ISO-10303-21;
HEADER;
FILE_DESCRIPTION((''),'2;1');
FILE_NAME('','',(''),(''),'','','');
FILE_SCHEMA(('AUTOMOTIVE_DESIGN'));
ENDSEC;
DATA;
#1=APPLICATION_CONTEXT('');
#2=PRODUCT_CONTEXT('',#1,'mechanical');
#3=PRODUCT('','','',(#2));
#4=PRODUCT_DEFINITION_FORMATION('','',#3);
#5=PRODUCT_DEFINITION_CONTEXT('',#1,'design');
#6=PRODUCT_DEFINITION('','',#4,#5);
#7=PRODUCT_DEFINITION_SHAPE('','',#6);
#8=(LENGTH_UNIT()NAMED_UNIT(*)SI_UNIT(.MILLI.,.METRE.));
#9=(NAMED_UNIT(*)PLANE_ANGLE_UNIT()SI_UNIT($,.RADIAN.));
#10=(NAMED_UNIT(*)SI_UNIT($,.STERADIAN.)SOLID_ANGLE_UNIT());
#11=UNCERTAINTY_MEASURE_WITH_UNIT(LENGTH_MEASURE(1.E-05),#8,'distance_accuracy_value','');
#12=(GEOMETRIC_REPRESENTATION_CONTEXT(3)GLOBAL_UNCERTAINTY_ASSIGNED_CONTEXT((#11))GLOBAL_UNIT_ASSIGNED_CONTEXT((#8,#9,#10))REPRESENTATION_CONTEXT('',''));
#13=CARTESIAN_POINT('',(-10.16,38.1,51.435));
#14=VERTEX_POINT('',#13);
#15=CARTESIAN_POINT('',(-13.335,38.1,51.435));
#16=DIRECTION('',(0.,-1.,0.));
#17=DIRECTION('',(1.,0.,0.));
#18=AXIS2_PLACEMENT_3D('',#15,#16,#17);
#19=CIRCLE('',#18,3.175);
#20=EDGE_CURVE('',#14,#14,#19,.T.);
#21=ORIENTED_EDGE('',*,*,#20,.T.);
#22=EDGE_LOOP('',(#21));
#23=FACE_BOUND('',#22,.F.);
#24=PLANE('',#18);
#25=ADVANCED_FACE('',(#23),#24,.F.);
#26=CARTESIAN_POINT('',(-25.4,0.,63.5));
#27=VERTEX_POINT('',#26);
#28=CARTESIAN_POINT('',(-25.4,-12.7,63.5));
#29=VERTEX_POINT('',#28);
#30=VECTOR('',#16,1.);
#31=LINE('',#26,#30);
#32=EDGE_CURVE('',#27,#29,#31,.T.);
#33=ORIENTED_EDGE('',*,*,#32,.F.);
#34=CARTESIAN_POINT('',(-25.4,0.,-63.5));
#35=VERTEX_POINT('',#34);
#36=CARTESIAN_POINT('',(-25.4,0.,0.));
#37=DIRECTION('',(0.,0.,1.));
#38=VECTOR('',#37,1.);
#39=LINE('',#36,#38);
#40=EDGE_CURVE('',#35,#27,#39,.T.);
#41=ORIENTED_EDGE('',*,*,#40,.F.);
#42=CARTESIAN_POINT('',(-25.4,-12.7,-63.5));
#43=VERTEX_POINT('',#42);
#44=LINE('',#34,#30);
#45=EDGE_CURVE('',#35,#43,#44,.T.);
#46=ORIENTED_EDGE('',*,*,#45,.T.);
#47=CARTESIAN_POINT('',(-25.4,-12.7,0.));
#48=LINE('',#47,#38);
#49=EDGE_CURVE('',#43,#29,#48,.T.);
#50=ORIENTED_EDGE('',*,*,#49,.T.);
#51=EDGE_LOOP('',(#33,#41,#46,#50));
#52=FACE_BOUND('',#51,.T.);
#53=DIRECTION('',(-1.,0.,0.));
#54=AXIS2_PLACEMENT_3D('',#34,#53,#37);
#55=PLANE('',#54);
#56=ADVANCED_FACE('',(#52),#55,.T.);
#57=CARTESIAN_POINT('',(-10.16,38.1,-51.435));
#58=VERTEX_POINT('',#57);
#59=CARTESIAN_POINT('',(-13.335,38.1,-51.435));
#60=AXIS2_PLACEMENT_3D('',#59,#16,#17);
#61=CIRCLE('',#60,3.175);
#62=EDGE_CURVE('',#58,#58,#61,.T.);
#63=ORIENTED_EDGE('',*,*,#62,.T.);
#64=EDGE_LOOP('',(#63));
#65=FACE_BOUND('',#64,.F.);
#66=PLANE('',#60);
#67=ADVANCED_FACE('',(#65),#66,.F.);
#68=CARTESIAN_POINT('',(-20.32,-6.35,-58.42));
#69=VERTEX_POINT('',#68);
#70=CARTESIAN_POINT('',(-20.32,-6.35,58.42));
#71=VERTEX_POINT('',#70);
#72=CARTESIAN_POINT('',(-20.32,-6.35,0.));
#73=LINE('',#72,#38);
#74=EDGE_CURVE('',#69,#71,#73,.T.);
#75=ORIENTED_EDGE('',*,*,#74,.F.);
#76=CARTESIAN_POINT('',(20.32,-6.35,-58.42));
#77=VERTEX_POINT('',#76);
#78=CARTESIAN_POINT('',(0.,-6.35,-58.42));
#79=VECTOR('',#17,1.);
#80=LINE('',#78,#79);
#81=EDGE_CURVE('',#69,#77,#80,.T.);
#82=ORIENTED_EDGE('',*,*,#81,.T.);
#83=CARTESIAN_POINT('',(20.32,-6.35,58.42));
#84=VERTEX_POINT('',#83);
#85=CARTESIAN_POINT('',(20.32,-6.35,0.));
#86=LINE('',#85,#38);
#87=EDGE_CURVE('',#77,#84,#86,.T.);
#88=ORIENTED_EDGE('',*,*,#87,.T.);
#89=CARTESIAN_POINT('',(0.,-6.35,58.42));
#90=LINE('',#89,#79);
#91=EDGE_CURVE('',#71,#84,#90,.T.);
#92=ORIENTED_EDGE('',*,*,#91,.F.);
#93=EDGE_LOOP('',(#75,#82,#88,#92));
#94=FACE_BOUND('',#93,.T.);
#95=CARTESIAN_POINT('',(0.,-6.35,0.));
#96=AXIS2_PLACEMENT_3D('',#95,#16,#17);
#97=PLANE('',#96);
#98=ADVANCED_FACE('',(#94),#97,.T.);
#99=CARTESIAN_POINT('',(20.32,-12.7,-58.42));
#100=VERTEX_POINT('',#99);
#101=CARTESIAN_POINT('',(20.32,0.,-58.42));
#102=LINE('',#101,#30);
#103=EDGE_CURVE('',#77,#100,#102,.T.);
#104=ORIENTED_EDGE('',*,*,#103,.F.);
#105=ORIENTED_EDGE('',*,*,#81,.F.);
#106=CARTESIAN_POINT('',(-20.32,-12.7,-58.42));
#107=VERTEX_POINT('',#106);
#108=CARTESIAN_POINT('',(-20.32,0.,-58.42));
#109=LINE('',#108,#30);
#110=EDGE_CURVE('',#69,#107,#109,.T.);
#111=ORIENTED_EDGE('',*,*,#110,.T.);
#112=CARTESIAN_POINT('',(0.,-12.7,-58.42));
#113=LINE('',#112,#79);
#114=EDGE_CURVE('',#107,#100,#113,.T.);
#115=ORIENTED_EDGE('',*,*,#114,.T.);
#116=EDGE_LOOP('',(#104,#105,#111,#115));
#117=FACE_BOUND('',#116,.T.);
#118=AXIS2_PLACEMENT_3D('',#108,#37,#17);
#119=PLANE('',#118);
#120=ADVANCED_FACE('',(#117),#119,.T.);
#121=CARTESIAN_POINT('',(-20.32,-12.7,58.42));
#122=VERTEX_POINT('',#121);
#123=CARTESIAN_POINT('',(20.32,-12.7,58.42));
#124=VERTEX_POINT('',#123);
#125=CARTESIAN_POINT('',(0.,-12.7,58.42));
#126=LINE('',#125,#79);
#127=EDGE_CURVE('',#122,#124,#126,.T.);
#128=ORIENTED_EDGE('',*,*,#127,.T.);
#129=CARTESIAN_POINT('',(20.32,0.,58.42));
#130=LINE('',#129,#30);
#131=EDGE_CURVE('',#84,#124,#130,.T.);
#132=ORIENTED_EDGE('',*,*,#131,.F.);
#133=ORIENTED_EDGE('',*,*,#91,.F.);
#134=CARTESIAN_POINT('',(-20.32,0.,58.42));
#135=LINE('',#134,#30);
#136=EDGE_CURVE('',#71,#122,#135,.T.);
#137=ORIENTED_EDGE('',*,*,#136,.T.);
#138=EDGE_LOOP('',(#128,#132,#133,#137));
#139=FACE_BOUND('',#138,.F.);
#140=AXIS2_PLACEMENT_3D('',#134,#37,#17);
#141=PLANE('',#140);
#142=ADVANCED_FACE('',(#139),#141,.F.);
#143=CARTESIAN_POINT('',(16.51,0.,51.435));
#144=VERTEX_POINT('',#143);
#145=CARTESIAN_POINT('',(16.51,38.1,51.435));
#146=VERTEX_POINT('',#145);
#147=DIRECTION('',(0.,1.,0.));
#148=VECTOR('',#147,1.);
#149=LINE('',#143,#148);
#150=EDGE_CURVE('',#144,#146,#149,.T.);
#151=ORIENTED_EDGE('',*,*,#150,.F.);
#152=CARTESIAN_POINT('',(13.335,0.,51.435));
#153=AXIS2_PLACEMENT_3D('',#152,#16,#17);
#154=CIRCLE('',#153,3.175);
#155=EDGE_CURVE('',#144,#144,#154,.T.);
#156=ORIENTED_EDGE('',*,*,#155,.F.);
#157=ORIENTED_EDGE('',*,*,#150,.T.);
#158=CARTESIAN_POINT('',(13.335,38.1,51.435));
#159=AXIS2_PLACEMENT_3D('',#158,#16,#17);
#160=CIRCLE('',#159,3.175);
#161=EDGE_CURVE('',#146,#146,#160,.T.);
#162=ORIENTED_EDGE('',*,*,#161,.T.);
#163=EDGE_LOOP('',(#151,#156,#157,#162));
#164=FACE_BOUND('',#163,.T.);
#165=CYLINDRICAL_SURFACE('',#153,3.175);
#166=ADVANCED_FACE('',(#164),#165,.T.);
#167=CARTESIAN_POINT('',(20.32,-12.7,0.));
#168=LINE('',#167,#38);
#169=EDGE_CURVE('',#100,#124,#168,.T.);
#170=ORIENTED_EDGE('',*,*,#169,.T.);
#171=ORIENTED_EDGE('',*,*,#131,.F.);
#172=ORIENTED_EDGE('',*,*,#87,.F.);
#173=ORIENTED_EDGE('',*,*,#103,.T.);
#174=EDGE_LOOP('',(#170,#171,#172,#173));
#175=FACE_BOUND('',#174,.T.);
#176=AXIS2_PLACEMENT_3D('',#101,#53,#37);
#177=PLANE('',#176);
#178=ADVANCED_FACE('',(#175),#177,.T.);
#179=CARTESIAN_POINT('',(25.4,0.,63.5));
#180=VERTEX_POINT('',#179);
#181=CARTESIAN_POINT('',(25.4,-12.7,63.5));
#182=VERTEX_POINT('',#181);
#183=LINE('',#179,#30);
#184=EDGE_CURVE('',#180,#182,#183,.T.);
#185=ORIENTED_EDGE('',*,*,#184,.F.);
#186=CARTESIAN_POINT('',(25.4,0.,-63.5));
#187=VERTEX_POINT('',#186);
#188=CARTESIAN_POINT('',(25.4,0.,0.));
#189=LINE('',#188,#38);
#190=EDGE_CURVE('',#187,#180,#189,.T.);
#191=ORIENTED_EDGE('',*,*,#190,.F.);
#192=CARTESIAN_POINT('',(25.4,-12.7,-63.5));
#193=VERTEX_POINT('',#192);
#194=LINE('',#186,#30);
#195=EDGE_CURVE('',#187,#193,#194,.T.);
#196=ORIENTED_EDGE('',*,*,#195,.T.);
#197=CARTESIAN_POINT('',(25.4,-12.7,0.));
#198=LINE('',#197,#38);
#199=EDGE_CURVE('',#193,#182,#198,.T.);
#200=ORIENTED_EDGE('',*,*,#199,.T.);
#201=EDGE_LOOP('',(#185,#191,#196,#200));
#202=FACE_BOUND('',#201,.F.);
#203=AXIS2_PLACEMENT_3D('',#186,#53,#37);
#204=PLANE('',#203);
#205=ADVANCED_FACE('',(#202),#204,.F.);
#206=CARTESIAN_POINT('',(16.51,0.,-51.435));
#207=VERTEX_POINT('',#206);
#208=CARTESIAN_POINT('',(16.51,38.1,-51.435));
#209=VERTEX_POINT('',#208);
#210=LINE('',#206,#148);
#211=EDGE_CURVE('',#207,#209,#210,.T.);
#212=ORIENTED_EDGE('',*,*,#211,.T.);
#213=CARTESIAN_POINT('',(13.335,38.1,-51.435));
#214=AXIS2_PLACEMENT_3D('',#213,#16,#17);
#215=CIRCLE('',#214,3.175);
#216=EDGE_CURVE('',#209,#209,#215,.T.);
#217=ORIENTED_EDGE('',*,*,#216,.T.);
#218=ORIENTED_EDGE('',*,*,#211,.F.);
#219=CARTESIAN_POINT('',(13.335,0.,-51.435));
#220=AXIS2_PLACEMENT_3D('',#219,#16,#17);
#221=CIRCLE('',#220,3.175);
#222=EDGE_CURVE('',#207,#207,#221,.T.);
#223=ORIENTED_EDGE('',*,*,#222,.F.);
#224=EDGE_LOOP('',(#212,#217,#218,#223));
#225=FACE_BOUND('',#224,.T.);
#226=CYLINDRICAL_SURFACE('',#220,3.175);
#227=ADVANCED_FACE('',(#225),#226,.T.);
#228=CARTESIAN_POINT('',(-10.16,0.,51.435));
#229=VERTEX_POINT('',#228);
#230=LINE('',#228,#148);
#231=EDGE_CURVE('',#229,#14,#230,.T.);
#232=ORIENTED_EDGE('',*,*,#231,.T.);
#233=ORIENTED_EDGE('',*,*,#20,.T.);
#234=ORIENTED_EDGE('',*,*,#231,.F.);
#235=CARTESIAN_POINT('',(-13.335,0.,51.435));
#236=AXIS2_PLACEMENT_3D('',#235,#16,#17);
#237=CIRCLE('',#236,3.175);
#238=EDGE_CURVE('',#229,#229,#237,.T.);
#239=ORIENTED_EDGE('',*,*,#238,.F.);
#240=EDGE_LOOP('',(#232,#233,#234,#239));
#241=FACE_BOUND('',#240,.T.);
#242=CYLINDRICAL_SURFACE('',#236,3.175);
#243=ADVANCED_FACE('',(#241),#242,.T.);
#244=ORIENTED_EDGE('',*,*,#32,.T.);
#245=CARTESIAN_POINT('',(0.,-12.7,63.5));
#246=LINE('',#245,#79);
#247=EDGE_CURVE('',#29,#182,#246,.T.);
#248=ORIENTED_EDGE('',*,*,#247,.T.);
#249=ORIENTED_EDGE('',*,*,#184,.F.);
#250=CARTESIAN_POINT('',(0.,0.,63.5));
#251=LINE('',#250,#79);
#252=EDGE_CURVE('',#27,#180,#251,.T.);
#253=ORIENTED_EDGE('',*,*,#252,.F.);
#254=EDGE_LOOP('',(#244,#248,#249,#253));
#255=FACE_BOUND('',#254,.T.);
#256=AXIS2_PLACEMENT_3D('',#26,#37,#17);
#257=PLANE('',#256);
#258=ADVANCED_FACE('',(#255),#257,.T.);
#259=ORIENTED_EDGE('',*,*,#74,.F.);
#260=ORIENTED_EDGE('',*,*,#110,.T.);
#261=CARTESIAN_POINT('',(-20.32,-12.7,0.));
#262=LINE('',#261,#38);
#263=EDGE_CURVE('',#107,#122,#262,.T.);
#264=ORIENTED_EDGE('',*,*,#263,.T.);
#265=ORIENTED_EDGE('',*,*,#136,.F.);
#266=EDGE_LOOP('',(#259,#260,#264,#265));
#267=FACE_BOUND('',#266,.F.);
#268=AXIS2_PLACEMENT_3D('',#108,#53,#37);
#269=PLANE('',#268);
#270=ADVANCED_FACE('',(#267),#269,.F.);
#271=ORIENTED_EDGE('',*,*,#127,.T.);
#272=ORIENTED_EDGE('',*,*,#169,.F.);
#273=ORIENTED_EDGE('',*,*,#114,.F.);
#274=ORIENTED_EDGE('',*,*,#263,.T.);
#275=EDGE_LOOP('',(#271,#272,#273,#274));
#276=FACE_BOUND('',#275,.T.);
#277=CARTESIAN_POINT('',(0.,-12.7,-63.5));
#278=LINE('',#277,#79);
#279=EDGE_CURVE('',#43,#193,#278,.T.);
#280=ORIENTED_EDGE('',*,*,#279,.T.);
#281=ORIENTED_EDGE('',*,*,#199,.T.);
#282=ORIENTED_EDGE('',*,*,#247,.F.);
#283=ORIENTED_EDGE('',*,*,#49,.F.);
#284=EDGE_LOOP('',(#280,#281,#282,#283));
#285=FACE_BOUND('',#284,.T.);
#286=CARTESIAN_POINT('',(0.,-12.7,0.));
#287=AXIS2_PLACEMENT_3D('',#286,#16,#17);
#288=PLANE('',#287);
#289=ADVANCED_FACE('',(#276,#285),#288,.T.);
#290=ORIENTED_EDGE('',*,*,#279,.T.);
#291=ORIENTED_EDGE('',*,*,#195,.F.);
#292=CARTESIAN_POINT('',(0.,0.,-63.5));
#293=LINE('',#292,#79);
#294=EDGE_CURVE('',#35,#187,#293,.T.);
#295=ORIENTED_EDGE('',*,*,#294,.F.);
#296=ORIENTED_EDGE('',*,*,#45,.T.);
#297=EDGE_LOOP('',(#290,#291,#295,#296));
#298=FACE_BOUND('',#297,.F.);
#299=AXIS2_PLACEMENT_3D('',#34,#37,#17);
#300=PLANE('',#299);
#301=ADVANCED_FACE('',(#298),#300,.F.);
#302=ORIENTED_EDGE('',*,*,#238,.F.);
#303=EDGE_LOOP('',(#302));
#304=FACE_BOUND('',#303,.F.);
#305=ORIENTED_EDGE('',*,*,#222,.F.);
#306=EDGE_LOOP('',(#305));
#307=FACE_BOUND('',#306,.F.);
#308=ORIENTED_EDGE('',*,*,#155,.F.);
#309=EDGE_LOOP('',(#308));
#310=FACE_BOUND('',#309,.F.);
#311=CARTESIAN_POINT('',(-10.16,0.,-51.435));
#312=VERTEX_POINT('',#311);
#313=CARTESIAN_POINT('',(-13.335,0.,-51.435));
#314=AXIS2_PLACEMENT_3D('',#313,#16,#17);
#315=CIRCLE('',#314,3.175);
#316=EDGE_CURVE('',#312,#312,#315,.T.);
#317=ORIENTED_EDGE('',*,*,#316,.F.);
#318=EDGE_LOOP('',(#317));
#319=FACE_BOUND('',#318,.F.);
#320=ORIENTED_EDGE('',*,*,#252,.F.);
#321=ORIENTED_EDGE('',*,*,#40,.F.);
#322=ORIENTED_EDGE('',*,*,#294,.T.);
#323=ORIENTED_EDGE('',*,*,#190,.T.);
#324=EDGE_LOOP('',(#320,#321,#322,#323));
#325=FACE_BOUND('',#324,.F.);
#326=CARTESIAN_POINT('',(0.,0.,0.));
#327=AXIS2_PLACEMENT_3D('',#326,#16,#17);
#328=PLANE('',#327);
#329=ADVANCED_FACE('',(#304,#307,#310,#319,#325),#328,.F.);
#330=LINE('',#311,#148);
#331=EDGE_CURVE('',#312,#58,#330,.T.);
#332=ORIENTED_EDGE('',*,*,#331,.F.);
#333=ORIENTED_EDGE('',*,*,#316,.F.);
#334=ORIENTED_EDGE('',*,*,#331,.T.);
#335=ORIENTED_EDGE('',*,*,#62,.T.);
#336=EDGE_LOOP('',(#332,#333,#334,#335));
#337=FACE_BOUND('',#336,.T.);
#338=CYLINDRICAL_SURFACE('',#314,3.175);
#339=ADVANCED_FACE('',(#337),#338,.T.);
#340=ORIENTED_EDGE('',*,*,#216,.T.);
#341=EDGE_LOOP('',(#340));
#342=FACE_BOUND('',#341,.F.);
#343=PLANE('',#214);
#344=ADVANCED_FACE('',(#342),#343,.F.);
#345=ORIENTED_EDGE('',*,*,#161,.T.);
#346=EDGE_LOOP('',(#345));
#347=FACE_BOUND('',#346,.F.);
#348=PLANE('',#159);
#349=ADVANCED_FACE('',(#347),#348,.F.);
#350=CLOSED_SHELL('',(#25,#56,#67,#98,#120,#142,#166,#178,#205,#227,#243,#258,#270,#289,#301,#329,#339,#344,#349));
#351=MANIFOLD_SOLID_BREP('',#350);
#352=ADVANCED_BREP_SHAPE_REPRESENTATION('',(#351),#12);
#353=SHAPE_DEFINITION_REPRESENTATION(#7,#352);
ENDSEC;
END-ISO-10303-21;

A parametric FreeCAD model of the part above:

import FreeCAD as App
import Part
import Sketcher
from FreeCAD import Vector
Q = App.Units.Quantity

doc = App.newDocument("Part")
params = doc.addObject("Spreadsheet::Sheet", "Params")
for row, (alias, value) in enumerate([
    ("sketch1_width", "1.6 in"),
    ("sketch1_height", "4.6 in"),
    ("pad1_length", "0.25 in"),
    ("sketch2_width", "2 in"),
    ("sketch2_height", "5 in"),
    ("sketch2_width2", "1.6 in"),
    ("sketch2_height2", "4.6 in"),
    ("pad2_length", "0.5 in"),
    ("sketch3_diameter", "0.25 in"),
    ("pad3_length", "1.5 in"),
], start=1):
    params.set(f"A{row}", alias)
    params.set(f"B{row}", "=" + value)
    params.setAlias(f"B{row}", alias)

body = doc.addObject("PartDesign::Body", "Body")

# Sketch on XZ plane
sketch1 = body.newObject("Sketcher::SketchObject", "Sketch")
sketch1.AttachmentSupport = (doc.getObject("XZ_Plane"), [""])
sketch1.MapMode = "FlatFace"
sketch1.addGeometry(Part.LineSegment(Vector(-20.32, 58.42, 0), Vector(-20.32, -58.42, 0)), False)
sketch1.addGeometry(Part.LineSegment(Vector(-20.32, -58.42, 0), Vector(20.32, -58.42, 0)), False)
sketch1.addGeometry(Part.LineSegment(Vector(20.32, -58.42, 0), Vector(20.32, 58.42, 0)), False)
sketch1.addGeometry(Part.LineSegment(Vector(20.32, 58.42, 0), Vector(-20.32, 58.42, 0)), False)
sketch1.addConstraint(Sketcher.Constraint("Coincident", 0, 2, 1, 1))
sketch1.addConstraint(Sketcher.Constraint("Coincident", 1, 2, 2, 1))
sketch1.addConstraint(Sketcher.Constraint("Coincident", 2, 2, 3, 1))
sketch1.addConstraint(Sketcher.Constraint("Coincident", 3, 2, 0, 1))
sketch1.addConstraint(Sketcher.Constraint("Vertical", 0))
sketch1.addConstraint(Sketcher.Constraint("Horizontal", 1))
sketch1.addConstraint(Sketcher.Constraint("Vertical", 2))
sketch1.addConstraint(Sketcher.Constraint("Horizontal", 3))
sketch1.addConstraint(Sketcher.Constraint("Symmetric", 0, 2, 2, 2, -1, 1))
sketch1.addConstraint(Sketcher.Constraint("DistanceX", 1, 1, 1, 2, Q("1.6 in")))
sketch1.addConstraint(Sketcher.Constraint("DistanceY", 0, 2, 0, 1, Q("4.6 in")))
sketch1.setExpression("Constraints[9]", "Params.sketch1_width")
sketch1.setExpression("Constraints[10]", "Params.sketch1_height")
pad1 = body.newObject("PartDesign::Pad", "Pad")
pad1.Profile = sketch1
pad1.setExpression("Length", "Params.pad1_length")

# Sketch on XZ plane
sketch2 = body.newObject("Sketcher::SketchObject", "Sketch001")
sketch2.AttachmentSupport = (doc.getObject("XZ_Plane"), [""])
sketch2.MapMode = "FlatFace"
sketch2.addGeometry(Part.LineSegment(Vector(-25.4, 63.5, 0), Vector(-25.4, -63.5, 0)), False)
sketch2.addGeometry(Part.LineSegment(Vector(-25.4, -63.5, 0), Vector(25.4, -63.5, 0)), False)
sketch2.addGeometry(Part.LineSegment(Vector(25.4, -63.5, 0), Vector(25.4, 63.5, 0)), False)
sketch2.addGeometry(Part.LineSegment(Vector(25.4, 63.5, 0), Vector(-25.4, 63.5, 0)), False)
sketch2.addGeometry(Part.LineSegment(Vector(20.32, -58.42, 0), Vector(-20.32, -58.42, 0)), False)
sketch2.addGeometry(Part.LineSegment(Vector(-20.32, -58.42, 0), Vector(-20.32, 58.42, 0)), False)
sketch2.addGeometry(Part.LineSegment(Vector(-20.32, 58.42, 0), Vector(20.32, 58.42, 0)), False)
sketch2.addGeometry(Part.LineSegment(Vector(20.32, 58.42, 0), Vector(20.32, -58.42, 0)), False)
sketch2.addConstraint(Sketcher.Constraint("Coincident", 0, 2, 1, 1))
sketch2.addConstraint(Sketcher.Constraint("Coincident", 1, 2, 2, 1))
sketch2.addConstraint(Sketcher.Constraint("Coincident", 2, 2, 3, 1))
sketch2.addConstraint(Sketcher.Constraint("Coincident", 3, 2, 0, 1))
sketch2.addConstraint(Sketcher.Constraint("Coincident", 4, 2, 5, 1))
sketch2.addConstraint(Sketcher.Constraint("Coincident", 5, 2, 6, 1))
sketch2.addConstraint(Sketcher.Constraint("Coincident", 6, 2, 7, 1))
sketch2.addConstraint(Sketcher.Constraint("Coincident", 7, 2, 4, 1))
sketch2.addConstraint(Sketcher.Constraint("Vertical", 0))
sketch2.addConstraint(Sketcher.Constraint("Horizontal", 1))
sketch2.addConstraint(Sketcher.Constraint("Vertical", 2))
sketch2.addConstraint(Sketcher.Constraint("Horizontal", 3))
sketch2.addConstraint(Sketcher.Constraint("Horizontal", 4))
sketch2.addConstraint(Sketcher.Constraint("Vertical", 5))
sketch2.addConstraint(Sketcher.Constraint("Horizontal", 6))
sketch2.addConstraint(Sketcher.Constraint("Vertical", 7))
sketch2.addConstraint(Sketcher.Constraint("Symmetric", 0, 2, 2, 2, -1, 1))
sketch2.addConstraint(Sketcher.Constraint("Symmetric", 4, 2, 6, 2, -1, 1))
sketch2.addConstraint(Sketcher.Constraint("DistanceX", 1, 1, 1, 2, Q("2 in")))
sketch2.addConstraint(Sketcher.Constraint("DistanceY", 0, 2, 0, 1, Q("5 in")))
sketch2.addConstraint(Sketcher.Constraint("DistanceX", 4, 2, 4, 1, Q("1.6 in")))
sketch2.addConstraint(Sketcher.Constraint("DistanceY", 5, 1, 5, 2, Q("4.6 in")))
sketch2.setExpression("Constraints[18]", "Params.sketch2_width")
sketch2.setExpression("Constraints[19]", "Params.sketch2_height")
sketch2.setExpression("Constraints[20]", "Params.sketch2_width2")
sketch2.setExpression("Constraints[21]", "Params.sketch2_height2")
pad2 = body.newObject("PartDesign::Pad", "Pad001")
pad2.Profile = sketch2
pad2.setExpression("Length", "Params.pad2_length")

# Sketch on XZ plane
sketch3 = body.newObject("Sketcher::SketchObject", "Sketch002")
sketch3.AttachmentSupport = (doc.getObject("XZ_Plane"), [""])
sketch3.MapMode = "FlatFace"
sketch3.addGeometry(Part.Circle(Vector(-13.335, -51.435, 0), Vector(0, 0, 1), 3.175), False)
sketch3.addGeometry(Part.Circle(Vector(13.335, -51.435, 0), Vector(0, 0, 1), 3.175), False)
sketch3.addGeometry(Part.Circle(Vector(13.335, 51.435, 0), Vector(0, 0, 1), 3.175), False)
sketch3.addGeometry(Part.Circle(Vector(-13.335, 51.435, 0), Vector(0, 0, 1), 3.175), False)
sketch3.addConstraint(Sketcher.Constraint("Equal", 0, 1))
sketch3.addConstraint(Sketcher.Constraint("Equal", 1, 2))
sketch3.addConstraint(Sketcher.Constraint("Equal", 2, 3))
sketch3.addConstraint(Sketcher.Constraint("Symmetric", 0, 3, 2, 3, -1, 1))
sketch3.addConstraint(Sketcher.Constraint("Symmetric", 1, 3, 3, 3, -1, 1))
sketch3.addConstraint(Sketcher.Constraint("Symmetric", 0, 3, 1, 3, -2))
sketch3.addConstraint(Sketcher.Constraint("Diameter", 0, Q("0.25 in")))
sketch3.addConstraint(Sketcher.Constraint("DistanceX", 0, 3, 1, 3, Q("1.05 in")))
sketch3.addConstraint(Sketcher.Constraint("DistanceY", 1, 3, 2, 3, Q("4.05 in")))
sketch3.setExpression("Constraints[6]", "Params.sketch3_diameter")
pad3 = body.newObject("PartDesign::Pad", "Pad002")
pad3.Profile = sketch3
pad3.setExpression("Length", "Params.pad3_length")
pad3.Reversed = True

doc.recompute()
